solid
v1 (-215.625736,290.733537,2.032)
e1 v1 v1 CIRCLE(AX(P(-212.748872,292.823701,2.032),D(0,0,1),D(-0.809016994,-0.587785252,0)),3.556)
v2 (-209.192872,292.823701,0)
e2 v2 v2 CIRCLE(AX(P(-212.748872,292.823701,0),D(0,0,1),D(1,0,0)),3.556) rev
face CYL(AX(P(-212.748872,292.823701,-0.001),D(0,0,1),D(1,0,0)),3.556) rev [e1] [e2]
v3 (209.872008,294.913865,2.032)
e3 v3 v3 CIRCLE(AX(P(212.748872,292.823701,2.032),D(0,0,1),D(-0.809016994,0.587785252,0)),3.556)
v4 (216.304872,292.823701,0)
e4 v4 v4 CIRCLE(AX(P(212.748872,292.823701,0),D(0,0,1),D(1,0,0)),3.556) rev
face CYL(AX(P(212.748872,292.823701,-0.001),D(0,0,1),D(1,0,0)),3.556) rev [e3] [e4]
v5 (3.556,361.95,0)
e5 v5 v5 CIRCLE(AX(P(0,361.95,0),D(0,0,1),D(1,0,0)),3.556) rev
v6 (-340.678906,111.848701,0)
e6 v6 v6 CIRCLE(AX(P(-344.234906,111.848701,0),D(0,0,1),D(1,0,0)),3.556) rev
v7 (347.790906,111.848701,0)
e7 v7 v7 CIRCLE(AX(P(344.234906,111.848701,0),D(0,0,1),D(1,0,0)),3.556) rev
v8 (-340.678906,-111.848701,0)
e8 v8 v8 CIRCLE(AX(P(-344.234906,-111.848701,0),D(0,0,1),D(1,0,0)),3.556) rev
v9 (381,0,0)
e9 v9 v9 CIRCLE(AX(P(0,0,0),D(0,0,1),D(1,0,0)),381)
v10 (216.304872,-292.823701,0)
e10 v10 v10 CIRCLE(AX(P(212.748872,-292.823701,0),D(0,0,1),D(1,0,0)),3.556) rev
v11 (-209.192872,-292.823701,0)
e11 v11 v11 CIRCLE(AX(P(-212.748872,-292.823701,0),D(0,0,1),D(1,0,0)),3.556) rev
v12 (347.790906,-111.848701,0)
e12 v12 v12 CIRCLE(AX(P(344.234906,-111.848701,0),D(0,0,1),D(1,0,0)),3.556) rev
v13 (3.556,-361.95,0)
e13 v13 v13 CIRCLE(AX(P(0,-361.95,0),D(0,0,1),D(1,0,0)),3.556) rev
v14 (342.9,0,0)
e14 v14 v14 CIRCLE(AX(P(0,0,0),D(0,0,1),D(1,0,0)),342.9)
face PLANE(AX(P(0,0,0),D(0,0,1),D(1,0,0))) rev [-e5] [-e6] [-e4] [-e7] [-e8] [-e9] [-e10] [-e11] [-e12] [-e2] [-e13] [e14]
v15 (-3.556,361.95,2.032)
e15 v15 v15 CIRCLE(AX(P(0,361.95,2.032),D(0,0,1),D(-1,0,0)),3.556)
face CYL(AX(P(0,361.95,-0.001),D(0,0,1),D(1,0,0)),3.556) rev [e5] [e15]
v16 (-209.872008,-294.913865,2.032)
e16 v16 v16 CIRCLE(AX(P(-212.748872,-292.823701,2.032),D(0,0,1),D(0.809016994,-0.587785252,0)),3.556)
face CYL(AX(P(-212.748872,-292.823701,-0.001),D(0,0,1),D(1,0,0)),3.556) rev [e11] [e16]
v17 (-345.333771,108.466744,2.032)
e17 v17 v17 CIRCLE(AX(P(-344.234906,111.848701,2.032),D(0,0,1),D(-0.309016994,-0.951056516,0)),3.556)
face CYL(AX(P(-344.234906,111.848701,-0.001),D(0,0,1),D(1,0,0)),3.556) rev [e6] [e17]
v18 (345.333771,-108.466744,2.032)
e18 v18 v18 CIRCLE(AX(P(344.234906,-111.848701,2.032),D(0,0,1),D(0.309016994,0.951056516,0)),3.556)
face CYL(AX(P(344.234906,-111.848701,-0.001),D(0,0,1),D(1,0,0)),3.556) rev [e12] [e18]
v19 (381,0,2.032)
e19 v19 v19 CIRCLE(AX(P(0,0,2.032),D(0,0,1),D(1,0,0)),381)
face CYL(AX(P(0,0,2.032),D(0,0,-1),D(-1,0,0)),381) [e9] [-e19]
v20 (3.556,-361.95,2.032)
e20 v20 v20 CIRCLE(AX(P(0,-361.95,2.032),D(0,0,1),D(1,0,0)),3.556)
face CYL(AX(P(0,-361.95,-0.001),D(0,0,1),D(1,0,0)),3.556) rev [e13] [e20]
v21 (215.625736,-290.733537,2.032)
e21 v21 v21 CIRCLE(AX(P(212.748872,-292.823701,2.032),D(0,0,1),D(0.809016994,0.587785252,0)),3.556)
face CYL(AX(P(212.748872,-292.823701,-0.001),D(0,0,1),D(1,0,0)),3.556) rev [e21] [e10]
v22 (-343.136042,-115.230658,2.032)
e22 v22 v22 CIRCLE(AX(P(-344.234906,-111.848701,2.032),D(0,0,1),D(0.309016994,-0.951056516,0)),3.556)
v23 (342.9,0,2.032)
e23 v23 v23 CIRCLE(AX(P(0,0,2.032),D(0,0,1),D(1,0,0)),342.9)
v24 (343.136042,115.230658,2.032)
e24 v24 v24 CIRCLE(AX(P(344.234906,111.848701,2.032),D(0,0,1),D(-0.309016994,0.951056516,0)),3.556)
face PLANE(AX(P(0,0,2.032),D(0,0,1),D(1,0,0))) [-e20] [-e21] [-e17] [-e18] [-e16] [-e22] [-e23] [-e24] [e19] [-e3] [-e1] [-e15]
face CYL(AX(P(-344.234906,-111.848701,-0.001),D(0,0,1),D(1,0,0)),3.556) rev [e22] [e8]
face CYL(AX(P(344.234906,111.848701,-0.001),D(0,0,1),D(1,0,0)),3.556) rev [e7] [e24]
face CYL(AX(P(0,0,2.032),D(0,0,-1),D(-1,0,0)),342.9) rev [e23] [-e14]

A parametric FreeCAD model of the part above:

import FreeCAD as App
import Part
import Sketcher

V = App.Vector
Q = App.Units.Quantity

doc = App.newDocument("Part")
body = doc.addObject("PartDesign::Body", "Body")

# Sketch on XY plane
sketch1 = body.newObject("Sketcher::SketchObject", "Sketch")
sketch1.AttachmentSupport = (doc.getObject("XY_Plane"), [""])
sketch1.MapMode = "FlatFace"
sketch1.addGeometry([
    Part.Circle(V(0, 0, 0), V(0, 0, 1), 381),
    Part.Circle(V(0, 0, 0), V(0, 0, 1), 342.9),
], False)
sketch1.addConstraint([
    Sketcher.Constraint("Coincident", 0, 3, -1, 1),
    Sketcher.Constraint("Coincident", 1, 3, -1, 1),
    Sketcher.Constraint("Diameter", 0, Q("30 in")),
    Sketcher.Constraint("Diameter", 1, Q("27 in")),
])
pad1 = body.newObject("PartDesign::Pad", "Pad")
pad1.Profile = sketch1
pad1.Length = Q("0.08 in")

# Sketch on XY plane
sketch2 = body.newObject("Sketcher::SketchObject", "Sketch001")
sketch2.AttachmentSupport = (doc.getObject("XY_Plane"), [""])
sketch2.MapMode = "FlatFace"
sketch2.AttachmentOffset = App.Placement(V(0, 0, 0.08 * 25.4), App.Rotation())
sketch2.addGeometry(Part.Circle(V(0, -361.95, 0), V(0, 0, 1), 3.556), False)
sketch2.addConstraint([
    Sketcher.Constraint("PointOnObject", 0, 3, -2),
    Sketcher.Constraint("Diameter", 0, Q("0.28 in")),
    Sketcher.Constraint("DistanceY", 0, 3, -1, 1, Q("14.25 in")),
])
pocket1 = body.newObject("PartDesign::Pocket", "Pocket")
pocket1.Profile = sketch2
pocket1.Length = Q("0.08 in")
doc.recompute()

polarpattern = body.newObject("PartDesign::PolarPattern", "PolarPattern")
polarpattern.Originals = [pocket1]
polarpattern.Axis = (doc.getObject("Z_Axis"), [""])
polarpattern.Angle = 360
polarpattern.Occurrences = 10
body.Tip = polarpattern

doc.recompute()
